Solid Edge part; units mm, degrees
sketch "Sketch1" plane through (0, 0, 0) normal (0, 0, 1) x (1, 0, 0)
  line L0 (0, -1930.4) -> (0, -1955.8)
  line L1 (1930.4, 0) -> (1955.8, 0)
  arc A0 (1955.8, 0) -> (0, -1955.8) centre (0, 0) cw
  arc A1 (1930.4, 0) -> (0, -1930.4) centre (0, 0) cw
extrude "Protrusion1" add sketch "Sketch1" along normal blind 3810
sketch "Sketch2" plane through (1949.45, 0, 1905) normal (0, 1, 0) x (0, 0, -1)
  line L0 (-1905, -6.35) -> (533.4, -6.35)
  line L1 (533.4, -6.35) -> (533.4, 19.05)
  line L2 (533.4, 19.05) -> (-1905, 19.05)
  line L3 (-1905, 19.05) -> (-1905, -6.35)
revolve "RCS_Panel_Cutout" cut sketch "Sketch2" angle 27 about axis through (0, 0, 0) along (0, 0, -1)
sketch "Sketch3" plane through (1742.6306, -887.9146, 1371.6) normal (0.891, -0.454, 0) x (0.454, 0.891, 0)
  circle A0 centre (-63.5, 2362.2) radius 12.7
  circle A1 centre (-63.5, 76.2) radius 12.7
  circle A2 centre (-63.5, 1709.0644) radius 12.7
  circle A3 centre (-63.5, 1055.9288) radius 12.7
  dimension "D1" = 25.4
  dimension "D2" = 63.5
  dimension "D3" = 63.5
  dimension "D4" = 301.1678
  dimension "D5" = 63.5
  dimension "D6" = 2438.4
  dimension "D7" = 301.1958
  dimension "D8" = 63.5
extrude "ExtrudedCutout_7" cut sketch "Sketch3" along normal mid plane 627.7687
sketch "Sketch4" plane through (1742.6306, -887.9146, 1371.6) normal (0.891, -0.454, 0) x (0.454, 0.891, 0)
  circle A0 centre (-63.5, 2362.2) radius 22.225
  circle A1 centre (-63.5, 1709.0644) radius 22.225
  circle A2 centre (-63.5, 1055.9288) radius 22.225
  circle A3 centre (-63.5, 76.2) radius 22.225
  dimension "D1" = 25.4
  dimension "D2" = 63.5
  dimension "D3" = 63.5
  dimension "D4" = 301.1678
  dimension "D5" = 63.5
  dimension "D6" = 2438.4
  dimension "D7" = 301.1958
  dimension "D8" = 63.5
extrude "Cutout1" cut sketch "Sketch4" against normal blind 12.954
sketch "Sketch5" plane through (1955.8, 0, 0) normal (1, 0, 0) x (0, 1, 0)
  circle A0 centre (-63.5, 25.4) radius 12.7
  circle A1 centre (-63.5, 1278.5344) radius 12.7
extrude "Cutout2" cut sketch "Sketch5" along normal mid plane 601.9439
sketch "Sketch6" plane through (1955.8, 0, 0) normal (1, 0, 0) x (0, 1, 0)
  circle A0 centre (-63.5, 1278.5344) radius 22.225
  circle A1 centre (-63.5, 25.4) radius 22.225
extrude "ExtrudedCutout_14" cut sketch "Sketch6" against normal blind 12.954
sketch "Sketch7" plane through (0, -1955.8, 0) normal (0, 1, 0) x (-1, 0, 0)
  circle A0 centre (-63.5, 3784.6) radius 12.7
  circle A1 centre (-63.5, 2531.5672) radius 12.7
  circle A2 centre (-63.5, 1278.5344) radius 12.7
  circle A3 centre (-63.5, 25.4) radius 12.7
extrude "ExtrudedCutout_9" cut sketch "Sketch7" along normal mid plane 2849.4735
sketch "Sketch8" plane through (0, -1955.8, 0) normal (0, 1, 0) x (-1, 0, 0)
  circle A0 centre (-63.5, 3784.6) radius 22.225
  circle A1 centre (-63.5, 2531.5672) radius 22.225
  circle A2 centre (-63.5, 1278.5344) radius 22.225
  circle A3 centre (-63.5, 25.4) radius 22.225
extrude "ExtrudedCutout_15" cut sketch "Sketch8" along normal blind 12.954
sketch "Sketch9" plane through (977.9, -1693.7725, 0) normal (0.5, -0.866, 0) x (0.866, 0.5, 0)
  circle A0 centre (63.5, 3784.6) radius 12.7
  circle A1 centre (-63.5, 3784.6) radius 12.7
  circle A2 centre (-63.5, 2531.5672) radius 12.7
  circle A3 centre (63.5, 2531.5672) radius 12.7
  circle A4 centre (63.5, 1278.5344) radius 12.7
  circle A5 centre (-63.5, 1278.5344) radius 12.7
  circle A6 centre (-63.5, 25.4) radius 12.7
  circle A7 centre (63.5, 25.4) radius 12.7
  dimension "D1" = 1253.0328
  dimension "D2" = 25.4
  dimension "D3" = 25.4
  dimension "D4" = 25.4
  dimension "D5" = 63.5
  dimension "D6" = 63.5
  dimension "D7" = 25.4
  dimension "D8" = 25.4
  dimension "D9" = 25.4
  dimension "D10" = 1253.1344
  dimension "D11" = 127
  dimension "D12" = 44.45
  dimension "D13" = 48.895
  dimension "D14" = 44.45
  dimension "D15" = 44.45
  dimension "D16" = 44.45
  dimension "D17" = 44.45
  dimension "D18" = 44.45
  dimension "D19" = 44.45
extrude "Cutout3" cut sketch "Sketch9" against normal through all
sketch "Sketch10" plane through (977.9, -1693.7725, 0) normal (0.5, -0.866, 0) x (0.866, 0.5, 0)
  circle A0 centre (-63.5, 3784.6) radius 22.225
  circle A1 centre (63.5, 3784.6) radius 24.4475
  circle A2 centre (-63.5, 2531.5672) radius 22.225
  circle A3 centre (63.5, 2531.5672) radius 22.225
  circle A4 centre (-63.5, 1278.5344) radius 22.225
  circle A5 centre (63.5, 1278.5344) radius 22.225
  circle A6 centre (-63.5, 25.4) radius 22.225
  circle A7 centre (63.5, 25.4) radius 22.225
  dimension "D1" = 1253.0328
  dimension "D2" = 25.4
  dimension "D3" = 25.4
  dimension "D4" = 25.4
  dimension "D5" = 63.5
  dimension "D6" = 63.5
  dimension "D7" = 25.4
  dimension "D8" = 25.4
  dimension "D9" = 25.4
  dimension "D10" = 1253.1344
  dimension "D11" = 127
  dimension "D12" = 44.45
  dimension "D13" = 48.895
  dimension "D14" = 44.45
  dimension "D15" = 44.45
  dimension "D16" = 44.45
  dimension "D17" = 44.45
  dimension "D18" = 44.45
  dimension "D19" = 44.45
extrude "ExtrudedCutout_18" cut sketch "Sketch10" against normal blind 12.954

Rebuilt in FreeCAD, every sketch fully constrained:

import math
import FreeCAD as App
import Part
import Sketcher
Q = App.Units.Quantity

doc = App.newDocument("Part")
params = doc.addObject("Spreadsheet::Sheet", "Params")
for row, (alias, value) in enumerate([
    ("sketch1_radius", "76 in"),
    ("sketch1_radius2", "77 in"),
    ("pad1_length", "150 in"),
    ("sketch2_width", "1 in"),
    ("sketch2_height", "96 in"),
    ("groove_angle", "27 deg"),
    ("sketch3_diameter", "1 in"),
    ("pocket1_length", "24.7153031 in"),
    ("sketch4_diameter", "1.75 in"),
    ("pocket2_length", "0.51 in"),
    ("sketch5_diameter", "1 in"),
    ("pocket3_length", "601.9439 mm"),
    ("sketch6_diameter", "1.75 in"),
    ("pocket4_length", "0.51 in"),
    ("sketch7_diameter", "1 in"),
    ("pocket5_length", "112.1839961 in"),
    ("sketch8_diameter", "1.75 in"),
    ("pocket6_length", "0.51 in"),
    ("sketch9_diameter", "1 in"),
    ("sketch10_diameter", "1.75 in"),
    ("sketch10_diameter2", "1.925 in"),
    ("pocket8_length", "0.51 in"),
], start=1):
    params.set(f"A{row}", alias)
    params.set(f"B{row}", "=" + value)
    params.setAlias(f"B{row}", alias)

body = doc.addObject("PartDesign::Body", "Body")

# Sketch on XY plane
sketch1 = doc.addObject("Sketcher::SketchObject", "Sketch")
body.addObject(sketch1)
sketch1.AttachmentSupport = (doc.XY_Plane, [""])
sketch1.MapMode = "FlatFace"
sketch1.addGeometry(Part.ArcOfCircle(Part.Circle(App.Vector(0, 0, 0), App.Vector(0, 0, 1), 1930.4), math.radians(-90), math.radians(0)), False)
sketch1.addGeometry(Part.LineSegment(App.Vector(0, -1930.4, 0), App.Vector(0, -1955.8, 0)), False)
sketch1.addGeometry(Part.ArcOfCircle(Part.Circle(App.Vector(0, 0, 0), App.Vector(0, 0, 1), 1955.8), math.radians(-90), math.radians(0)), False)
sketch1.addGeometry(Part.LineSegment(App.Vector(1955.8, 0, 0), App.Vector(1930.4, 0, 0)), False)
sketch1.addConstraint(Sketcher.Constraint("Coincident", 0, 1, 1, 1))
sketch1.addConstraint(Sketcher.Constraint("Coincident", 1, 2, 2, 1))
sketch1.addConstraint(Sketcher.Constraint("Coincident", 2, 2, 3, 1))
sketch1.addConstraint(Sketcher.Constraint("Coincident", 3, 2, 0, 2))
sketch1.addConstraint(Sketcher.Constraint("Vertical", 1))
sketch1.addConstraint(Sketcher.Constraint("Horizontal", 3))
sketch1.addConstraint(Sketcher.Constraint("Coincident", 0, 3, -1, 1))
sketch1.addConstraint(Sketcher.Constraint("Coincident", 2, 3, -1, 1))
sketch1.addConstraint(Sketcher.Constraint("PointOnObject", 1, 2, -2))
sketch1.addConstraint(Sketcher.Constraint("PointOnObject", 3, 2, -1))
sketch1.addConstraint(Sketcher.Constraint("Radius", 0, Q("76 in")))
sketch1.addConstraint(Sketcher.Constraint("Radius", 2, Q("77 in")))
sketch1.setExpression("Constraints[10]", "Params.sketch1_radius")
sketch1.setExpression("Constraints[11]", "Params.sketch1_radius2")
pad1 = doc.addObject("PartDesign::Pad", "Pad")
body.addObject(pad1)
pad1.Profile = sketch1
pad1.setExpression("Length", "Params.pad1_length")

# Sketch on XZ plane
sketch2 = doc.addObject("Sketcher::SketchObject", "Sketch001")
body.addObject(sketch2)
sketch2.AttachmentSupport = (doc.XZ_Plane, [""])
sketch2.MapMode = "FlatFace"
sketch2.addGeometry(Part.LineSegment(App.Vector(1930.4, 3810, 0), App.Vector(1955.8, 3810, 0)), False)
sketch2.addGeometry(Part.LineSegment(App.Vector(1955.8, 3810, 0), App.Vector(1955.8, 1371.6, 0)), False)
sketch2.addGeometry(Part.LineSegment(App.Vector(1955.8, 1371.6, 0), App.Vector(1930.4, 1371.6, 0)), False)
sketch2.addGeometry(Part.LineSegment(App.Vector(1930.4, 1371.6, 0), App.Vector(1930.4, 3810, 0)), False)
sketch2.addConstraint(Sketcher.Constraint("Coincident", 0, 2, 1, 1))
sketch2.addConstraint(Sketcher.Constraint("Coincident", 1, 2, 2, 1))
sketch2.addConstraint(Sketcher.Constraint("Coincident", 2, 2, 3, 1))
sketch2.addConstraint(Sketcher.Constraint("Coincident", 3, 2, 0, 1))
sketch2.addConstraint(Sketcher.Constraint("Horizontal", 0))
sketch2.addConstraint(Sketcher.Constraint("Vertical", 1))
sketch2.addConstraint(Sketcher.Constraint("Horizontal", 2))
sketch2.addConstraint(Sketcher.Constraint("Vertical", 3))
sketch2.addConstraint(Sketcher.Constraint("DistanceX", 0, 1, 0, 2, Q("1 in")))
sketch2.addConstraint(Sketcher.Constraint("DistanceY", 1, 2, 1, 1, Q("96 in")))
sketch2.addConstraint(Sketcher.Constraint("DistanceX", -1, 1, 0, 2, Q("77 in")))
sketch2.addConstraint(Sketcher.Constraint("DistanceY", -1, 1, 0, 2, Q("150 in")))
sketch2.setExpression("Constraints[8]", "Params.sketch2_width")
sketch2.setExpression("Constraints[9]", "Params.sketch2_height")
groove = doc.addObject("PartDesign::Groove", "Groove")
body.addObject(groove)
groove.Profile = sketch2
groove.ReferenceAxis = (sketch2, ["V_Axis"])
groove.setExpression("Angle", "Params.groove_angle")
groove.Reversed = True

# Sketch on an angled plane
sketch3 = doc.addObject("Sketcher::SketchObject", "Sketch002")
body.addObject(sketch3)
sketch3.Placement = App.Placement(App.Vector(1742.6306, -887.9146, 1371.6), App.Rotation(App.Vector(0.4539905, 0.891006524, 0), App.Vector(0, 0, 1), App.Vector(0.891006524, -0.4539905, 0), "ZXY"))
sketch3.addGeometry(Part.Circle(App.Vector(-63.5, 2362.2, 0), App.Vector(0, 0, 1), 12.7), False)
sketch3.addGeometry(Part.Circle(App.Vector(-63.5, 76.2, 0), App.Vector(0, 0, 1), 12.7), False)
sketch3.addGeometry(Part.Circle(App.Vector(-63.5, 1709.0644, 0), App.Vector(0, 0, 1), 12.7), False)
sketch3.addGeometry(Part.Circle(App.Vector(-63.5, 1055.9288, 0), App.Vector(0, 0, 1), 12.7), False)
sketch3.addConstraint(Sketcher.Constraint("Equal", 0, 1))
sketch3.addConstraint(Sketcher.Constraint("Equal", 1, 2))
sketch3.addConstraint(Sketcher.Constraint("Equal", 2, 3))
sketch3.addConstraint(Sketcher.Constraint("Vertical", 0, 3, 1, 3))
sketch3.addConstraint(Sketcher.Constraint("Vertical", 1, 3, 2, 3))
sketch3.addConstraint(Sketcher.Constraint("Vertical", 2, 3, 3, 3))
sketch3.addConstraint(Sketcher.Constraint("Diameter", 0, Q("1 in")))
sketch3.addConstraint(Sketcher.Constraint("DistanceY", -1, 1, 0, 3, Q("93 in")))
sketch3.addConstraint(Sketcher.Constraint("DistanceY", -1, 1, 1, 3, Q("3 in")))
sketch3.addConstraint(Sketcher.Constraint("DistanceX", 0, 3, -1, 1, Q("2.5 in")))
sketch3.addConstraint(Sketcher.Constraint("DistanceY", -1, 1, 2, 3, Q("67.286 in")))
sketch3.addConstraint(Sketcher.Constraint("DistanceY", -1, 1, 3, 3, Q("41.572 in")))
sketch3.setExpression("Constraints[6]", "Params.sketch3_diameter")
pocket1 = doc.addObject("PartDesign::Pocket", "Pocket")
body.addObject(pocket1)
pocket1.Profile = sketch3
pocket1.setExpression("Length", "Params.pocket1_length")
pocket1.Midplane = True

# Sketch on an angled plane
sketch4 = doc.addObject("Sketcher::SketchObject", "Sketch003")
body.addObject(sketch4)
sketch4.Placement = App.Placement(App.Vector(1742.6306, -887.9146, 1371.6), App.Rotation(App.Vector(0.4539905, 0.891006524, 0), App.Vector(0, 0, 1), App.Vector(0.891006524, -0.4539905, 0), "ZXY"))
sketch4.addGeometry(Part.Circle(App.Vector(-63.5, 2362.2, 0), App.Vector(0, 0, 1), 22.225), False)
sketch4.addGeometry(Part.Circle(App.Vector(-63.5, 1709.0644, 0), App.Vector(0, 0, 1), 22.225), False)
sketch4.addGeometry(Part.Circle(App.Vector(-63.5, 1055.9288, 0), App.Vector(0, 0, 1), 22.225), False)
sketch4.addGeometry(Part.Circle(App.Vector(-63.5, 76.2, 0), App.Vector(0, 0, 1), 22.225), False)
sketch4.addConstraint(Sketcher.Constraint("Equal", 0, 1))
sketch4.addConstraint(Sketcher.Constraint("Equal", 1, 2))
sketch4.addConstraint(Sketcher.Constraint("Equal", 2, 3))
sketch4.addConstraint(Sketcher.Constraint("Vertical", 0, 3, 1, 3))
sketch4.addConstraint(Sketcher.Constraint("Vertical", 1, 3, 2, 3))
sketch4.addConstraint(Sketcher.Constraint("Vertical", 2, 3, 3, 3))
sketch4.addConstraint(Sketcher.Constraint("Diameter", 0, Q("1.75 in")))
sketch4.addConstraint(Sketcher.Constraint("DistanceY", -1, 1, 0, 3, Q("93 in")))
sketch4.addConstraint(Sketcher.Constraint("DistanceY", -1, 1, 3, 3, Q("3 in")))
sketch4.addConstraint(Sketcher.Constraint("DistanceX", 0, 3, -1, 1, Q("2.5 in")))
sketch4.addConstraint(Sketcher.Constraint("DistanceY", -1, 1, 1, 3, Q("67.286 in")))
sketch4.addConstraint(Sketcher.Constraint("DistanceY", -1, 1, 2, 3, Q("41.572 in")))
sketch4.setExpression("Constraints[6]", "Params.sketch4_diameter")
pocket2 = doc.addObject("PartDesign::Pocket", "Pocket001")
body.addObject(pocket2)
pocket2.Profile = sketch4
pocket2.setExpression("Length", "Params.pocket2_length")

# Sketch on YZ plane
sketch5 = doc.addObject("Sketcher::SketchObject", "Sketch004")
body.addObject(sketch5)
sketch5.AttachmentSupport = (doc.YZ_Plane, [""])
sketch5.MapMode = "FlatFace"
sketch5.AttachmentOffset = App.Placement(App.Vector(0, 0, 77 * 25.4), App.Rotation())
sketch5.addGeometry(Part.Circle(App.Vector(-63.5, 25.4, 0), App.Vector(0, 0, 1), 12.7), False)
sketch5.addGeometry(Part.Circle(App.Vector(-63.5, 1278.5344, 0), App.Vector(0, 0, 1), 12.7), False)
sketch5.addConstraint(Sketcher.Constraint("Equal", 0, 1))
sketch5.addConstraint(Sketcher.Constraint("Vertical", 0, 3, 1, 3))
sketch5.addConstraint(Sketcher.Constraint("Diameter", 0, Q("1 in")))
sketch5.addConstraint(Sketcher.Constraint("DistanceY", -1, 1, 0, 3, Q("1 in")))
sketch5.addConstraint(Sketcher.Constraint("DistanceX", 0, 3, -1, 1, Q("2.5 in")))
sketch5.addConstraint(Sketcher.Constraint("DistanceY", -1, 1, 1, 3, Q("50.336 in")))
sketch5.setExpression("Constraints[2]", "Params.sketch5_diameter")
pocket3 = doc.addObject("PartDesign::Pocket", "Pocket002")
body.addObject(pocket3)
pocket3.Profile = sketch5
pocket3.setExpression("Length", "Params.pocket3_length")
pocket3.Midplane = True

# Sketch on YZ plane
sketch6 = doc.addObject("Sketcher::SketchObject", "Sketch005")
body.addObject(sketch6)
sketch6.AttachmentSupport = (doc.YZ_Plane, [""])
sketch6.MapMode = "FlatFace"
sketch6.AttachmentOffset = App.Placement(App.Vector(0, 0, 77 * 25.4), App.Rotation())
sketch6.addGeometry(Part.Circle(App.Vector(-63.5, 1278.5344, 0), App.Vector(0, 0, 1), 22.225), False)
sketch6.addGeometry(Part.Circle(App.Vector(-63.5, 25.4, 0), App.Vector(0, 0, 1), 22.225), False)
sketch6.addConstraint(Sketcher.Constraint("Equal", 0, 1))
sketch6.addConstraint(Sketcher.Constraint("Vertical", 0, 3, 1, 3))
sketch6.addConstraint(Sketcher.Constraint("Diameter", 0, Q("1.75 in")))
sketch6.addConstraint(Sketcher.Constraint("DistanceY", -1, 1, 1, 3, Q("1 in")))
sketch6.addConstraint(Sketcher.Constraint("DistanceX", 0, 3, -1, 1, Q("2.5 in")))
sketch6.addConstraint(Sketcher.Constraint("DistanceY", -1, 1, 0, 3, Q("50.336 in")))
sketch6.setExpression("Constraints[2]", "Params.sketch6_diameter")
pocket4 = doc.addObject("PartDesign::Pocket", "Pocket003")
body.addObject(pocket4)
pocket4.Profile = sketch6
pocket4.setExpression("Length", "Params.pocket4_length")

# Sketch on XZ plane
sketch7 = doc.addObject("Sketcher::SketchObject", "Sketch006")
body.addObject(sketch7)
sketch7.AttachmentSupport = (doc.XZ_Plane, [""])
sketch7.MapMode = "FlatFace"
sketch7.AttachmentOffset = App.Placement(App.Vector(0, 0, 77 * 25.4), App.Rotation())
sketch7.addGeometry(Part.Circle(App.Vector(63.5, 3784.6, 0), App.Vector(0, 0, 1), 12.7), False)
sketch7.addGeometry(Part.Circle(App.Vector(63.5, 2531.5672, 0), App.Vector(0, 0, 1), 12.7), False)
sketch7.addGeometry(Part.Circle(App.Vector(63.5, 1278.5344, 0), App.Vector(0, 0, 1), 12.7), False)
sketch7.addGeometry(Part.Circle(App.Vector(63.5, 25.4, 0), App.Vector(0, 0, 1), 12.7), False)
sketch7.addConstraint(Sketcher.Constraint("Equal", 0, 1))
sketch7.addConstraint(Sketcher.Constraint("Equal", 1, 2))
sketch7.addConstraint(Sketcher.Constraint("Equal", 2, 3))
sketch7.addConstraint(Sketcher.Constraint("Vertical", 0, 3, 1, 3))
sketch7.addConstraint(Sketcher.Constraint("Vertical", 1, 3, 2, 3))
sketch7.addConstraint(Sketcher.Constraint("Vertical", 2, 3, 3, 3))
sketch7.addConstraint(Sketcher.Constraint("Diameter", 0, Q("1 in")))
sketch7.addConstraint(Sketcher.Constraint("DistanceY", -1, 1, 0, 3, Q("149 in")))
sketch7.addConstraint(Sketcher.Constraint("DistanceY", -1, 1, 3, 3, Q("1 in")))
sketch7.addConstraint(Sketcher.Constraint("DistanceX", -1, 1, 0, 3, Q("2.5 in")))
sketch7.addConstraint(Sketcher.Constraint("DistanceY", -1, 1, 1, 3, Q("99.668 in")))
sketch7.addConstraint(Sketcher.Constraint("DistanceY", -1, 1, 2, 3, Q("50.336 in")))
sketch7.setExpression("Constraints[6]", "Params.sketch7_diameter")
pocket5 = doc.addObject("PartDesign::Pocket", "Pocket004")
body.addObject(pocket5)
pocket5.Profile = sketch7
pocket5.setExpression("Length", "Params.pocket5_length")
pocket5.Midplane = True

# Sketch on XZ plane
sketch8 = doc.addObject("Sketcher::SketchObject", "Sketch007")
body.addObject(sketch8)
sketch8.AttachmentSupport = (doc.XZ_Plane, [""])
sketch8.MapMode = "FlatFace"
sketch8.AttachmentOffset = App.Placement(App.Vector(0, 0, 77 * 25.4), App.Rotation())
sketch8.addGeometry(Part.Circle(App.Vector(63.5, 3784.6, 0), App.Vector(0, 0, 1), 22.225), False)
sketch8.addGeometry(Part.Circle(App.Vector(63.5, 2531.5672, 0), App.Vector(0, 0, 1), 22.225), False)
sketch8.addGeometry(Part.Circle(App.Vector(63.5, 1278.5344, 0), App.Vector(0, 0, 1), 22.225), False)
sketch8.addGeometry(Part.Circle(App.Vector(63.5, 25.4, 0), App.Vector(0, 0, 1), 22.225), False)
sketch8.addConstraint(Sketcher.Constraint("Equal", 0, 1))
sketch8.addConstraint(Sketcher.Constraint("Equal", 1, 2))
sketch8.addConstraint(Sketcher.Constraint("Equal", 2, 3))
sketch8.addConstraint(Sketcher.Constraint("Vertical", 0, 3, 1, 3))
sketch8.addConstraint(Sketcher.Constraint("Vertical", 1, 3, 2, 3))
sketch8.addConstraint(Sketcher.Constraint("Vertical", 2, 3, 3, 3))
sketch8.addConstraint(Sketcher.Constraint("Diameter", 0, Q("1.75 in")))
sketch8.addConstraint(Sketcher.Constraint("DistanceY", -1, 1, 0, 3, Q("149 in")))
sketch8.addConstraint(Sketcher.Constraint("DistanceY", -1, 1, 3, 3, Q("1 in")))
sketch8.addConstraint(Sketcher.Constraint("DistanceX", -1, 1, 0, 3, Q("2.5 in")))
sketch8.addConstraint(Sketcher.Constraint("DistanceY", -1, 1, 1, 3, Q("99.668 in")))
sketch8.addConstraint(Sketcher.Constraint("DistanceY", -1, 1, 2, 3, Q("50.336 in")))
sketch8.setExpression("Constraints[6]", "Params.sketch8_diameter")
pocket6 = doc.addObject("PartDesign::Pocket", "Pocket005")
body.addObject(pocket6)
pocket6.Profile = sketch8
pocket6.setExpression("Length", "Params.pocket6_length")

# Sketch on an angled plane
sketch9 = doc.addObject("Sketcher::SketchObject", "Sketch008")
body.addObject(sketch9)
sketch9.Placement = App.Placement(App.Vector(977.9, -1693.7725, 0), App.Rotation(App.Vector(0.866025404, 0.5, 0), App.Vector(0, 0, 1), App.Vector(0.5, -0.866025404, 0), "ZXY"))
sketch9.addGeometry(Part.Circle(App.Vector(63.5, 3784.600003, 0), App.Vector(0, 0, 1), 12.7), False)
sketch9.addGeometry(Part.Circle(App.Vector(-63.5, 3784.600003, 0), App.Vector(0, 0, 1), 12.7), False)
sketch9.addGeometry(Part.Circle(App.Vector(-63.5, 2531.567202, 0), App.Vector(0, 0, 1), 12.7), False)
sketch9.addGeometry(Part.Circle(App.Vector(63.5, 2531.567202, 0), App.Vector(0, 0, 1), 12.7), False)
sketch9.addGeometry(Part.Circle(App.Vector(63.5, 1278.534401, 0), App.Vector(0, 0, 1), 12.7), False)
sketch9.addGeometry(Part.Circle(App.Vector(-63.5, 1278.534401, 0), App.Vector(0, 0, 1), 12.7), False)
sketch9.addGeometry(Part.Circle(App.Vector(-63.5, 25.4, 0), App.Vector(0, 0, 1), 12.7), False)
sketch9.addGeometry(Part.Circle(App.Vector(63.5, 25.4, 0), App.Vector(0, 0, 1), 12.7), False)
sketch9.addConstraint(Sketcher.Constraint("Equal", 0, 1))
sketch9.addConstraint(Sketcher.Constraint("Equal", 1, 2))
sketch9.addConstraint(Sketcher.Constraint("Equal", 2, 3))
sketch9.addConstraint(Sketcher.Constraint("Equal", 3, 4))
sketch9.addConstraint(Sketcher.Constraint("Equal", 4, 5))
sketch9.addConstraint(Sketcher.Constraint("Equal", 5, 6))
sketch9.addConstraint(Sketcher.Constraint("Equal", 6, 7))
sketch9.addConstraint(Sketcher.Constraint("Symmetric", 0, 3, 1, 3, -2))
sketch9.addConstraint(Sketcher.Constraint("Symmetric", 2, 3, 3, 3, -2))
sketch9.addConstraint(Sketcher.Constraint("Symmetric", 4, 3, 5, 3, -2))
sketch9.addConstraint(Sketcher.Constraint("Symmetric", 6, 3, 7, 3, -2))
sketch9.addConstraint(Sketcher.Constraint("Vertical", 1, 3, 2, 3))
sketch9.addConstraint(Sketcher.Constraint("Vertical", 3, 3, 4, 3))
sketch9.addConstraint(Sketcher.Constraint("Vertical", 5, 3, 6, 3))
sketch9.addConstraint(Sketcher.Constraint("Diameter", 0, Q("1 in")))
sketch9.addConstraint(Sketcher.Constraint("DistanceY", -1, 1, 0, 3, Q("149 in")))
sketch9.addConstraint(Sketcher.Constraint("DistanceY", -1, 1, 6, 3, Q("1 in")))
sketch9.addConstraint(Sketcher.Constraint("DistanceX", 1, 3, 0, 3, Q("5 in")))
sketch9.addConstraint(Sketcher.Constraint("DistanceY", -1, 1, 2, 3, Q("99.668 in")))
sketch9.addConstraint(Sketcher.Constraint("DistanceY", -1, 1, 4, 3, Q("50.336 in")))
sketch9.setExpression("Constraints[14]", "Params.sketch9_diameter")
pocket7 = doc.addObject("PartDesign::Pocket", "Pocket006")
body.addObject(pocket7)
pocket7.Profile = sketch9
pocket7.Type = "ThroughAll"

# Sketch on an angled plane
sketch10 = doc.addObject("Sketcher::SketchObject", "Sketch009")
body.addObject(sketch10)
sketch10.Placement = App.Placement(App.Vector(977.9, -1693.7725, 0), App.Rotation(App.Vector(0.866025404, 0.5, 0), App.Vector(0, 0, 1), App.Vector(0.5, -0.866025404, 0), "ZXY"))
sketch10.addGeometry(Part.Circle(App.Vector(-63.5, 3784.600003, 0), App.Vector(0, 0, 1), 22.225), False)
sketch10.addGeometry(Part.Circle(App.Vector(63.5, 3784.600003, 0), App.Vector(0, 0, 1), 24.4475), False)
sketch10.addGeometry(Part.Circle(App.Vector(-63.5, 2531.567202, 0), App.Vector(0, 0, 1), 22.225), False)
sketch10.addGeometry(Part.Circle(App.Vector(63.5, 2531.567202, 0), App.Vector(0, 0, 1), 22.225), False)
sketch10.addGeometry(Part.Circle(App.Vector(-63.5, 1278.534401, 0), App.Vector(0, 0, 1), 22.225), False)
sketch10.addGeometry(Part.Circle(App.Vector(63.5, 1278.534401, 0), App.Vector(0, 0, 1), 22.225), False)
sketch10.addGeometry(Part.Circle(App.Vector(-63.5, 25.4, 0), App.Vector(0, 0, 1), 22.225), False)
sketch10.addGeometry(Part.Circle(App.Vector(63.5, 25.4, 0), App.Vector(0, 0, 1), 22.225), False)
sketch10.addConstraint(Sketcher.Constraint("Equal", 0, 2))
sketch10.addConstraint(Sketcher.Constraint("Equal", 2, 3))
sketch10.addConstraint(Sketcher.Constraint("Equal", 3, 4))
sketch10.addConstraint(Sketcher.Constraint("Equal", 4, 5))
sketch10.addConstraint(Sketcher.Constraint("Equal", 5, 6))
sketch10.addConstraint(Sketcher.Constraint("Equal", 6, 7))
sketch10.addConstraint(Sketcher.Constraint("Symmetric", 0, 3, 1, 3, -2))
sketch10.addConstraint(Sketcher.Constraint("Symmetric", 2, 3, 3, 3, -2))
sketch10.addConstraint(Sketcher.Constraint("Symmetric", 4, 3, 5, 3, -2))
sketch10.addConstraint(Sketcher.Constraint("Symmetric", 6, 3, 7, 3, -2))
sketch10.addConstraint(Sketcher.Constraint("Vertical", 0, 3, 2, 3))
sketch10.addConstraint(Sketcher.Constraint("Vertical", 2, 3, 4, 3))
sketch10.addConstraint(Sketcher.Constraint("Vertical", 4, 3, 6, 3))
sketch10.addConstraint(Sketcher.Constraint("Diameter", 0, Q("1.75 in")))
sketch10.addConstraint(Sketcher.Constraint("Diameter", 1, Q("1.925 in")))
sketch10.addConstraint(Sketcher.Constraint("DistanceY", -1, 1, 0, 3, Q("149 in")))
sketch10.addConstraint(Sketcher.Constraint("DistanceY", -1, 1, 6, 3, Q("1 in")))
sketch10.addConstraint(Sketcher.Constraint("DistanceX", 0, 3, 1, 3, Q("5 in")))
sketch10.addConstraint(Sketcher.Constraint("DistanceY", -1, 1, 2, 3, Q("99.668 in")))
sketch10.addConstraint(Sketcher.Constraint("DistanceY", -1, 1, 4, 3, Q("50.336 in")))
sketch10.setExpression("Constraints[13]", "Params.sketch10_diameter")
sketch10.setExpression("Constraints[14]", "Params.sketch10_diameter2")
pocket8 = doc.addObject("PartDesign::Pocket", "Pocket007")
body.addObject(pocket8)
pocket8.Profile = sketch10
pocket8.setExpression("Length", "Params.pocket8_length")

doc.recompute()
